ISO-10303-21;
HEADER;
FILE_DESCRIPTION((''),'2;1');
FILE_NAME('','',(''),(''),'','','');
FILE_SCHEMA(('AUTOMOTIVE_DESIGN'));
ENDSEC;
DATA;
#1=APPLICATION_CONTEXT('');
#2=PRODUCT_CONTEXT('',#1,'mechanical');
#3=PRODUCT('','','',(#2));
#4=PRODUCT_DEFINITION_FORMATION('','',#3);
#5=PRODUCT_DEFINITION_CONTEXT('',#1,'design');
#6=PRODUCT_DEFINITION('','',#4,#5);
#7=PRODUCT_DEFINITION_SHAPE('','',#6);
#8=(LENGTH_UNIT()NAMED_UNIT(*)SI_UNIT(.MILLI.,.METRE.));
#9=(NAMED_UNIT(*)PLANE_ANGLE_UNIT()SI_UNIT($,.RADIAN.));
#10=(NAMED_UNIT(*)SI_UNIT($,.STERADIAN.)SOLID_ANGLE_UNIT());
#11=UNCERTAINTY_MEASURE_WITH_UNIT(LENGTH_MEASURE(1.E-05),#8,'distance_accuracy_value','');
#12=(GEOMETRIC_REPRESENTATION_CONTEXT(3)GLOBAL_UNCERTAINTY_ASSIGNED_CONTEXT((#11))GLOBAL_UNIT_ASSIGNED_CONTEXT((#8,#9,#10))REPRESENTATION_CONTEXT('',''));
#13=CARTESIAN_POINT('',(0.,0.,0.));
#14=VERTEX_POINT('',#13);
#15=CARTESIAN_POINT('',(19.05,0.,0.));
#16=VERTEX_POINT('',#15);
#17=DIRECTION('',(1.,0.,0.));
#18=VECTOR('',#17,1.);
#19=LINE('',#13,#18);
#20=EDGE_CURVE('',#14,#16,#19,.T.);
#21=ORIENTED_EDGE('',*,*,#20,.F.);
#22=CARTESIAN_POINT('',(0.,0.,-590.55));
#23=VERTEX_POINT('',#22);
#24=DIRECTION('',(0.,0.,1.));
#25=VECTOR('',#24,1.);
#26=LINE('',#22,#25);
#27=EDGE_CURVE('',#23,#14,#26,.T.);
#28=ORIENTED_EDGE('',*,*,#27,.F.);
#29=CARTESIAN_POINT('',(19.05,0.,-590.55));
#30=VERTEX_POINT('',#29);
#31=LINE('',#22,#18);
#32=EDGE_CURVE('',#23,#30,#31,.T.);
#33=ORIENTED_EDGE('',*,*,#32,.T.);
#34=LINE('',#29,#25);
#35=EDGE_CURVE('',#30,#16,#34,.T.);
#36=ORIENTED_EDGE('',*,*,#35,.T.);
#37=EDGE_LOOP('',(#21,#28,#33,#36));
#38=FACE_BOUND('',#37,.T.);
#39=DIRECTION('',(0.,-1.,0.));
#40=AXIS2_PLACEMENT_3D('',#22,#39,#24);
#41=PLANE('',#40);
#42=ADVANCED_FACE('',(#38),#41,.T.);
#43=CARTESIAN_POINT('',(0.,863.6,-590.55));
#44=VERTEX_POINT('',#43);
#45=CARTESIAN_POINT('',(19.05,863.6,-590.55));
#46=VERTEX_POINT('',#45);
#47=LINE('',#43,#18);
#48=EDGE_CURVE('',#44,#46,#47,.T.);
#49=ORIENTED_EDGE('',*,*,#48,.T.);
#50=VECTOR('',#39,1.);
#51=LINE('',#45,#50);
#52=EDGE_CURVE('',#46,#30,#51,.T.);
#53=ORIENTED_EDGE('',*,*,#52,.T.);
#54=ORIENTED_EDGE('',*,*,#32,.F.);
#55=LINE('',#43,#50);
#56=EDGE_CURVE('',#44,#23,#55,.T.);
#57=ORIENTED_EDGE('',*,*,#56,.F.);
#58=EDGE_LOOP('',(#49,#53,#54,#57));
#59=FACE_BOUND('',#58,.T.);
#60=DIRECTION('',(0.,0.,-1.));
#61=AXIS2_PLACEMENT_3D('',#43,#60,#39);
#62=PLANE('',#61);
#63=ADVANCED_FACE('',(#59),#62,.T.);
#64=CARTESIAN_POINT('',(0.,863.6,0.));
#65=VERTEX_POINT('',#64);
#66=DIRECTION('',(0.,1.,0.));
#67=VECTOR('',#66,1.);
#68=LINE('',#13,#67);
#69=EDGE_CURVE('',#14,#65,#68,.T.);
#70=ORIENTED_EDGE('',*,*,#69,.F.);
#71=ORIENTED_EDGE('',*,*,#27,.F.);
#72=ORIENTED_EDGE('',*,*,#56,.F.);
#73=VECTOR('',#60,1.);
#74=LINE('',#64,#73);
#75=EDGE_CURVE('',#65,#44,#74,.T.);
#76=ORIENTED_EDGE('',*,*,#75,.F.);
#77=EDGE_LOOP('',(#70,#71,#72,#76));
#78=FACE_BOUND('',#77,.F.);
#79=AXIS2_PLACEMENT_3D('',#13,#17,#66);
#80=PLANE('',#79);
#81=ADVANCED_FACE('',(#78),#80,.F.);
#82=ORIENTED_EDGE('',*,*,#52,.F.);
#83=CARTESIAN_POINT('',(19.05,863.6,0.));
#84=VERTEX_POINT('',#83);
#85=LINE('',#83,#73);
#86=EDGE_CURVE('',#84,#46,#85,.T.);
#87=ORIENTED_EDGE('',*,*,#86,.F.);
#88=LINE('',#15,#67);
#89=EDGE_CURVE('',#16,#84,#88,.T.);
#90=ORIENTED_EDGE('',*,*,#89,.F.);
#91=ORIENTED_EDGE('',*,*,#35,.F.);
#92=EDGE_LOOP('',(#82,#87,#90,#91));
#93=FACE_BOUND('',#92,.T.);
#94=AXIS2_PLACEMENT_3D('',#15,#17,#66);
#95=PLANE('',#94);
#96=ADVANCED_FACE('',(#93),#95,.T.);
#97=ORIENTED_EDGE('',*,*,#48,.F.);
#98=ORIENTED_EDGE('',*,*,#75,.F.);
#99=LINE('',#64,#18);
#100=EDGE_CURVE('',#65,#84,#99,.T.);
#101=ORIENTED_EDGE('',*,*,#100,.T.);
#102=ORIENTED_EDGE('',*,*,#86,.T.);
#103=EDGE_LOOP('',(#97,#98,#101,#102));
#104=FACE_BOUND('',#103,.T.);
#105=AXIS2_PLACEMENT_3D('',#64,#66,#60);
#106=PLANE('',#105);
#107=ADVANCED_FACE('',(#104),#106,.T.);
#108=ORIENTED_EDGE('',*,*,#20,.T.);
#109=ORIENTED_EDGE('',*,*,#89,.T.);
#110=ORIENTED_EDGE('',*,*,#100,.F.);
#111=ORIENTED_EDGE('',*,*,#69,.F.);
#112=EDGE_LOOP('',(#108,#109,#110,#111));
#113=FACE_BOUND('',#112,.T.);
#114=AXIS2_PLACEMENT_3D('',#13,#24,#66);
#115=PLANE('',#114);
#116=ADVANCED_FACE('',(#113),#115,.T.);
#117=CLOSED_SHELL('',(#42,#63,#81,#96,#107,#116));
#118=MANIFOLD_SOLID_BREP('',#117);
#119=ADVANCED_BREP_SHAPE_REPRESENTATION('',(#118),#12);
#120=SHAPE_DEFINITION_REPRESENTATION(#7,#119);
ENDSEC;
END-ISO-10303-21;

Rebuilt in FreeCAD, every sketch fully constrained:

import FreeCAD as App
import Part
import Sketcher
from FreeCAD import Vector
Q = App.Units.Quantity


def add_polygon(sketch, points):
    """Adds a closed chain of lines whose ends are joined by coincident constraints."""
    first, n = sketch.GeometryCount, len(points)
    for a, b in zip(points, points[1:] + points[:1]):
        sketch.addGeometry(Part.LineSegment(App.Vector(*a, 0), App.Vector(*b, 0)), False)
    for i in range(n):
        sketch.addConstraint(Sketcher.Constraint("Coincident", first + i, 2, first + (i + 1) % n, 1))

doc = App.newDocument("Part")
body = doc.addObject("PartDesign::Body", "Body")

# Sketch on YZ plane
sketch1 = doc.addObject("Sketcher::SketchObject", "Sketch")
body.addObject(sketch1)
sketch1.AttachmentSupport = (doc.YZ_Plane, [""])
sketch1.MapMode = "FlatFace"
add_polygon(sketch1, [(863.6, 0), (0, 0), (0, -590.55), (863.6, -590.55)])  # lines 0-3
sketch1.addConstraint(Sketcher.Constraint("Horizontal", 0))
sketch1.addConstraint(Sketcher.Constraint("Vertical", 1))
sketch1.addConstraint(Sketcher.Constraint("Horizontal", 2))
sketch1.addConstraint(Sketcher.Constraint("Vertical", 3))
sketch1.addConstraint(Sketcher.Constraint("Coincident", 0, 2, -1, 1))
sketch1.addConstraint(Sketcher.Constraint("DistanceX", 0, 2, 0, 1, Q("34 in")))
sketch1.addConstraint(Sketcher.Constraint("DistanceY", 1, 2, 1, 1, Q("23.25 in")))
pad1 = doc.addObject("PartDesign::Pad", "Pad")
body.addObject(pad1)
pad1.Profile = sketch1
pad1.Length = Q("0.75 in")

doc.recompute()
